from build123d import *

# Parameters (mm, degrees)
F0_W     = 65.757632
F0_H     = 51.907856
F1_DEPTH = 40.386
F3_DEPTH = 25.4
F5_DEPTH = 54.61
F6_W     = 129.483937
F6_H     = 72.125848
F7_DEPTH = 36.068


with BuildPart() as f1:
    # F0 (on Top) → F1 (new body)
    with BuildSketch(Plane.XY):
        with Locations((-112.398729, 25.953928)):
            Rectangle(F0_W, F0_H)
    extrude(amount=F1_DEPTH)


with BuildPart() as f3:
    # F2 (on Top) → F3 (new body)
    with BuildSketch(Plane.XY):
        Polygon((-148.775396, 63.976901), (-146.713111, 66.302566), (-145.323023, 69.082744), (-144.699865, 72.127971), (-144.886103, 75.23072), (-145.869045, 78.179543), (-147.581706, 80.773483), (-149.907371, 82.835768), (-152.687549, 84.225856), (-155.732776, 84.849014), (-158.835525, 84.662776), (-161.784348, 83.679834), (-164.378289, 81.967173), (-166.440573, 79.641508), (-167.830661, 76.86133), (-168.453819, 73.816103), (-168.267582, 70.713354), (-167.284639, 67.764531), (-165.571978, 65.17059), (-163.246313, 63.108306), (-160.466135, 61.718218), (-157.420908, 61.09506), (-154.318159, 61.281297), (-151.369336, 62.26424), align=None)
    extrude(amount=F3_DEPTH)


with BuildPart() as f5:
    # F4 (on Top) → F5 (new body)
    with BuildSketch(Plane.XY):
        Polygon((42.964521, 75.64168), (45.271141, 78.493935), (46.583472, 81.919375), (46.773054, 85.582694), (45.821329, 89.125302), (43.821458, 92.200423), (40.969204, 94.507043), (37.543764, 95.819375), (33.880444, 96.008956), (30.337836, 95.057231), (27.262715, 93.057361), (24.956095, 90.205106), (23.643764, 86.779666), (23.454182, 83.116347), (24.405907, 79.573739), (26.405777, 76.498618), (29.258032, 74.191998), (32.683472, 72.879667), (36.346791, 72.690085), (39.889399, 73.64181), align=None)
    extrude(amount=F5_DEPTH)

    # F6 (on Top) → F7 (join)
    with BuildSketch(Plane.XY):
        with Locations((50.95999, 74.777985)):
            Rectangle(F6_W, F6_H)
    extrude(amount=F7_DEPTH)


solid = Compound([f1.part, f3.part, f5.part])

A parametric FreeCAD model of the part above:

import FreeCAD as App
import Part
import Sketcher

V = App.Vector
Q = App.Units.Quantity

doc = App.newDocument("Part")
params = doc.addObject("Spreadsheet::Sheet", "Params")
for row, (alias, value) in enumerate([
    ("pad1_length", "1.59 in"),
    ("pad2_length", "1 in"),
    ("pad3_length", "2.15 in"),
    ("pad4_length", "1.42 in"),
], start=1):
    params.set(f"A{row}", alias)
    params.set(f"B{row}", "=" + value)
    params.setAlias(f"B{row}", alias)

body = doc.addObject("PartDesign::Body", "Body")

sketch1 = doc.addObject("Sketcher::SketchObject", "Sketch")
body.addObject(sketch1)
sketch1.AttachmentSupport = (doc.XY_Plane, [""])
sketch1.MapMode = "FlatFace"
sketch1.addGeometry([
    Part.LineSegment(V(-145.277545, 51.907856, 0), V(-145.277545, 0, 0)),
    Part.LineSegment(V(-145.277545, 0, 0), V(-79.519913, 0, 0)),
    Part.LineSegment(V(-79.519913, 0, 0), V(-79.519913, 51.907856, 0)),
    Part.LineSegment(V(-79.519913, 51.907856, 0), V(-145.277545, 51.907856, 0)),
], False)
sketch1.addConstraint([
    Sketcher.Constraint("Coincident", 0, 2, 1, 1),
    Sketcher.Constraint("Coincident", 1, 2, 2, 1),
    Sketcher.Constraint("Coincident", 2, 2, 3, 1),
    Sketcher.Constraint("Coincident", 3, 2, 0, 1),
    Sketcher.Constraint("Vertical", 0),
    Sketcher.Constraint("Horizontal", 1),
    Sketcher.Constraint("Vertical", 2),
    Sketcher.Constraint("Horizontal", 3),
    Sketcher.Constraint("PointOnObject", 0, 2, -1),
    Sketcher.Constraint("DistanceX", 1, 1, 1, 2, Q("65.757632 mm")),
    Sketcher.Constraint("DistanceY", 0, 2, 0, 1, Q("51.907856 mm")),
    Sketcher.Constraint("DistanceX", 0, 2, -1, 1, Q("145.277545 mm")),
])
pad1 = doc.addObject("PartDesign::Pad", "Pad")
body.addObject(pad1)
pad1.Profile = sketch1
pad1.setExpression("Length", "Params.pad1_length")
body2 = doc.addObject("PartDesign::Body", "Body001")

sketch2 = doc.addObject("Sketcher::SketchObject", "Sketch001")
body2.addObject(sketch2)
sketch2.AttachmentSupport = (doc.getObject("XY_Plane001"), [""])
sketch2.MapMode = "FlatFace"
sketch2.addGeometry([
    Part.LineSegment(V(-148.775396, 63.976901, 0), V(-146.713111, 66.302566, 0)),
    Part.LineSegment(V(-146.713111, 66.302566, 0), V(-145.323023, 69.082744, 0)),
    Part.LineSegment(V(-145.323023, 69.082744, 0), V(-144.699865, 72.127971, 0)),
    Part.LineSegment(V(-144.699865, 72.127971, 0), V(-144.886103, 75.23072, 0)),
    Part.LineSegment(V(-144.886103, 75.23072, 0), V(-145.869045, 78.179543, 0)),
    Part.LineSegment(V(-145.869045, 78.179543, 0), V(-147.581706, 80.773483, 0)),
    Part.LineSegment(V(-147.581706, 80.773483, 0), V(-149.907371, 82.835768, 0)),
    Part.LineSegment(V(-149.907371, 82.835768, 0), V(-152.687549, 84.225856, 0)),
    Part.LineSegment(V(-152.687549, 84.225856, 0), V(-155.732776, 84.849014, 0)),
    Part.LineSegment(V(-155.732776, 84.849014, 0), V(-158.835525, 84.662776, 0)),
    Part.LineSegment(V(-158.835525, 84.662776, 0), V(-161.784348, 83.679834, 0)),
    Part.LineSegment(V(-161.784348, 83.679834, 0), V(-164.378289, 81.967173, 0)),
    Part.LineSegment(V(-164.378289, 81.967173, 0), V(-166.440573, 79.641508, 0)),
    Part.LineSegment(V(-166.440573, 79.641508, 0), V(-167.830661, 76.86133, 0)),
    Part.LineSegment(V(-167.830661, 76.86133, 0), V(-168.453819, 73.816103, 0)),
    Part.LineSegment(V(-168.453819, 73.816103, 0), V(-168.267582, 70.713354, 0)),
    Part.LineSegment(V(-168.267582, 70.713354, 0), V(-167.284639, 67.764531, 0)),
    Part.LineSegment(V(-167.284639, 67.764531, 0), V(-165.571978, 65.17059, 0)),
    Part.LineSegment(V(-165.571978, 65.17059, 0), V(-163.246313, 63.108306, 0)),
    Part.LineSegment(V(-163.246313, 63.108306, 0), V(-160.466135, 61.718218, 0)),
    Part.LineSegment(V(-160.466135, 61.718218, 0), V(-157.420908, 61.09506, 0)),
    Part.LineSegment(V(-157.420908, 61.09506, 0), V(-154.318159, 61.281297, 0)),
    Part.LineSegment(V(-154.318159, 61.281297, 0), V(-151.369336, 62.26424, 0)),
    Part.LineSegment(V(-151.369336, 62.26424, 0), V(-148.775396, 63.976901, 0)),
], False)
sketch2.addConstraint([
    Sketcher.Constraint("Coincident", 0, 2, 1, 1),
    Sketcher.Constraint("Coincident", 1, 2, 2, 1),
    Sketcher.Constraint("Coincident", 2, 2, 3, 1),
    Sketcher.Constraint("Coincident", 3, 2, 4, 1),
    Sketcher.Constraint("Coincident", 4, 2, 5, 1),
    Sketcher.Constraint("Coincident", 5, 2, 6, 1),
    Sketcher.Constraint("Coincident", 6, 2, 7, 1),
    Sketcher.Constraint("Coincident", 7, 2, 8, 1),
    Sketcher.Constraint("Coincident", 8, 2, 9, 1),
    Sketcher.Constraint("Coincident", 9, 2, 10, 1),
    Sketcher.Constraint("Coincident", 10, 2, 11, 1),
    Sketcher.Constraint("Coincident", 11, 2, 12, 1),
    Sketcher.Constraint("Coincident", 12, 2, 13, 1),
    Sketcher.Constraint("Coincident", 13, 2, 14, 1),
    Sketcher.Constraint("Coincident", 14, 2, 15, 1),
    Sketcher.Constraint("Coincident", 15, 2, 16, 1),
    Sketcher.Constraint("Coincident", 16, 2, 17, 1),
    Sketcher.Constraint("Coincident", 17, 2, 18, 1),
    Sketcher.Constraint("Coincident", 18, 2, 19, 1),
    Sketcher.Constraint("Coincident", 19, 2, 20, 1),
    Sketcher.Constraint("Coincident", 20, 2, 21, 1),
    Sketcher.Constraint("Coincident", 21, 2, 22, 1),
    Sketcher.Constraint("Coincident", 22, 2, 23, 1),
    Sketcher.Constraint("Coincident", 23, 2, 0, 1),
    Sketcher.Constraint("Perpendicular", 0, 6),
    Sketcher.Constraint("Perpendicular", 1, 7),
    Sketcher.Constraint("Perpendicular", 2, 8),
    Sketcher.Constraint("Perpendicular", 3, 9),
    Sketcher.Constraint("Perpendicular", 4, 10),
    Sketcher.Constraint("Perpendicular", 5, 11),
    Sketcher.Constraint("Perpendicular", 6, 12),
    Sketcher.Constraint("Perpendicular", 7, 13),
    Sketcher.Constraint("Perpendicular", 8, 14),
    Sketcher.Constraint("Perpendicular", 9, 15),
    Sketcher.Constraint("Perpendicular", 10, 16),
    Sketcher.Constraint("Perpendicular", 11, 17),
    Sketcher.Constraint("Perpendicular", 12, 18),
    Sketcher.Constraint("Perpendicular", 13, 19),
    Sketcher.Constraint("Perpendicular", 14, 20),
    Sketcher.Constraint("Perpendicular", 15, 21),
    Sketcher.Constraint("Perpendicular", 16, 22),
    Sketcher.Constraint("Perpendicular", 17, 23),
    Sketcher.Constraint("Equal", 0, 1),
    Sketcher.Constraint("Equal", 1, 2),
    Sketcher.Constraint("Equal", 2, 3),
    Sketcher.Constraint("Equal", 3, 4),
    Sketcher.Constraint("Equal", 4, 5),
    Sketcher.Constraint("Equal", 5, 6),
    Sketcher.Constraint("Equal", 6, 7),
    Sketcher.Constraint("Equal", 7, 8),
    Sketcher.Constraint("Equal", 8, 9),
    Sketcher.Constraint("Equal", 9, 10),
    Sketcher.Constraint("Equal", 10, 11),
    Sketcher.Constraint("Equal", 11, 12),
    Sketcher.Constraint("Equal", 12, 13),
    Sketcher.Constraint("Equal", 13, 14),
    Sketcher.Constraint("Equal", 14, 15),
    Sketcher.Constraint("Equal", 15, 16),
    Sketcher.Constraint("Equal", 16, 17),
    Sketcher.Constraint("Equal", 17, 18),
    Sketcher.Constraint("Equal", 18, 19),
    Sketcher.Constraint("Equal", 19, 20),
    Sketcher.Constraint("Equal", 20, 21),
    Sketcher.Constraint("DistanceY", -1, 1, 23, 2, Q("63.976901 mm")),
    Sketcher.Constraint("DistanceY", 1, 2, 4, 2, Q("9.096799 mm")),
    Sketcher.Constraint("DistanceX", 0, 2, -1, 1, Q("146.713111 mm")),
    Sketcher.Constraint("DistanceY", -1, 1, 2, 2, Q("72.127971 mm")),
    Sketcher.Constraint("DistanceY", -1, 1, 3, 2, Q("75.23072 mm")),
    Sketcher.Constraint("DistanceX", 6, 2, -1, 1, Q("149.907371 mm")),
    Sketcher.Constraint("DistanceY", -1, 1, 6, 2, Q("82.835768 mm")),
    Sketcher.Constraint("DistanceX", 7, 2, -1, 1, Q("152.687549 mm")),
    Sketcher.Constraint("DistanceX", 11, 2, -1, 1, Q("164.378289 mm")),
])
pad2 = doc.addObject("PartDesign::Pad", "Pad001")
body2.addObject(pad2)
pad2.Profile = sketch2
pad2.setExpression("Length", "Params.pad2_length")
body3 = doc.addObject("PartDesign::Body", "Body002")

sketch3 = doc.addObject("Sketcher::SketchObject", "Sketch002")
body3.addObject(sketch3)
sketch3.AttachmentSupport = (doc.getObject("XY_Plane002"), [""])
sketch3.MapMode = "FlatFace"
sketch3.addGeometry([
    Part.LineSegment(V(42.964521, 75.64168, 0), V(45.271141, 78.493935, 0)),
    Part.LineSegment(V(45.271141, 78.493935, 0), V(46.583472, 81.919375, 0)),
    Part.LineSegment(V(46.583472, 81.919375, 0), V(46.773054, 85.582694, 0)),
    Part.LineSegment(V(46.773054, 85.582694, 0), V(45.821329, 89.125302, 0)),
    Part.LineSegment(V(45.821329, 89.125302, 0), V(43.821458, 92.200423, 0)),
    Part.LineSegment(V(43.821458, 92.200423, 0), V(40.969204, 94.507043, 0)),
    Part.LineSegment(V(40.969204, 94.507043, 0), V(37.543764, 95.819375, 0)),
    Part.LineSegment(V(37.543764, 95.819375, 0), V(33.880444, 96.008956, 0)),
    Part.LineSegment(V(33.880444, 96.008956, 0), V(30.337836, 95.057231, 0)),
    Part.LineSegment(V(30.337836, 95.057231, 0), V(27.262715, 93.057361, 0)),
    Part.LineSegment(V(27.262715, 93.057361, 0), V(24.956095, 90.205106, 0)),
    Part.LineSegment(V(24.956095, 90.205106, 0), V(23.643764, 86.779666, 0)),
    Part.LineSegment(V(23.643764, 86.779666, 0), V(23.454182, 83.116347, 0)),
    Part.LineSegment(V(23.454182, 83.116347, 0), V(24.405907, 79.573739, 0)),
    Part.LineSegment(V(24.405907, 79.573739, 0), V(26.405777, 76.498618, 0)),
    Part.LineSegment(V(26.405777, 76.498618, 0), V(29.258032, 74.191998, 0)),
    Part.LineSegment(V(29.258032, 74.191998, 0), V(32.683472, 72.879667, 0)),
    Part.LineSegment(V(32.683472, 72.879667, 0), V(36.346791, 72.690085, 0)),
    Part.LineSegment(V(36.346791, 72.690085, 0), V(39.889399, 73.64181, 0)),
    Part.LineSegment(V(39.889399, 73.64181, 0), V(42.964521, 75.64168, 0)),
], False)
sketch3.addConstraint([
    Sketcher.Constraint("Coincident", 0, 2, 1, 1),
    Sketcher.Constraint("Coincident", 1, 2, 2, 1),
    Sketcher.Constraint("Coincident", 2, 2, 3, 1),
    Sketcher.Constraint("Coincident", 3, 2, 4, 1),
    Sketcher.Constraint("Coincident", 4, 2, 5, 1),
    Sketcher.Constraint("Coincident", 5, 2, 6, 1),
    Sketcher.Constraint("Coincident", 6, 2, 7, 1),
    Sketcher.Constraint("Coincident", 7, 2, 8, 1),
    Sketcher.Constraint("Coincident", 8, 2, 9, 1),
    Sketcher.Constraint("Coincident", 9, 2, 10, 1),
    Sketcher.Constraint("Coincident", 10, 2, 11, 1),
    Sketcher.Constraint("Coincident", 11, 2, 12, 1),
    Sketcher.Constraint("Coincident", 12, 2, 13, 1),
    Sketcher.Constraint("Coincident", 13, 2, 14, 1),
    Sketcher.Constraint("Coincident", 14, 2, 15, 1),
    Sketcher.Constraint("Coincident", 15, 2, 16, 1),
    Sketcher.Constraint("Coincident", 16, 2, 17, 1),
    Sketcher.Constraint("Coincident", 17, 2, 18, 1),
    Sketcher.Constraint("Coincident", 18, 2, 19, 1),
    Sketcher.Constraint("Coincident", 19, 2, 0, 1),
    Sketcher.Constraint("Perpendicular", 0, 5),
    Sketcher.Constraint("Perpendicular", 1, 6),
    Sketcher.Constraint("Perpendicular", 2, 7),
    Sketcher.Constraint("Perpendicular", 3, 8),
    Sketcher.Constraint("Perpendicular", 4, 9),
    Sketcher.Constraint("Perpendicular", 5, 10),
    Sketcher.Constraint("Perpendicular", 6, 11),
    Sketcher.Constraint("Perpendicular", 7, 12),
    Sketcher.Constraint("Perpendicular", 8, 13),
    Sketcher.Constraint("Perpendicular", 9, 14),
    Sketcher.Constraint("Perpendicular", 10, 15),
    Sketcher.Constraint("Perpendicular", 11, 16),
    Sketcher.Constraint("Perpendicular", 12, 17),
    Sketcher.Constraint("Perpendicular", 13, 18),
    Sketcher.Constraint("Perpendicular", 14, 19),
    Sketcher.Constraint("Equal", 0, 1),
    Sketcher.Constraint("Equal", 1, 2),
    Sketcher.Constraint("Equal", 2, 3),
    Sketcher.Constraint("Equal", 3, 4),
    Sketcher.Constraint("Equal", 4, 5),
    Sketcher.Constraint("Equal", 5, 6),
    Sketcher.Constraint("Equal", 6, 7),
    Sketcher.Constraint("Equal", 7, 8),
    Sketcher.Constraint("Equal", 8, 9),
    Sketcher.Constraint("Equal", 9, 10),
    Sketcher.Constraint("Equal", 10, 11),
    Sketcher.Constraint("Equal", 11, 12),
    Sketcher.Constraint("Equal", 12, 13),
    Sketcher.Constraint("Equal", 13, 14),
    Sketcher.Constraint("Equal", 14, 15),
    Sketcher.Constraint("Equal", 15, 16),
    Sketcher.Constraint("Equal", 16, 17),
    Sketcher.Constraint("DistanceY", -1, 1, 15, 2, Q("74.191998 mm")),
    Sketcher.Constraint("DistanceX", -1, 1, 18, 2, Q("39.889399 mm")),
    Sketcher.Constraint("DistanceY", 1, 2, 6, 2, Q("13.9 mm")),
    Sketcher.Constraint("Distance", 1, Q("3.668222 mm")),
    Sketcher.Constraint("DistanceX", -1, 1, 0, 2, Q("45.271141 mm")),
    Sketcher.Constraint("DistanceX", -1, 1, 3, 2, Q("45.821329 mm")),
    Sketcher.Constraint("DistanceY", -1, 1, 8, 2, Q("95.057231 mm")),
    Sketcher.Constraint("DistanceY", -1, 1, 9, 2, Q("93.057361 mm")),
])
pad3 = doc.addObject("PartDesign::Pad", "Pad002")
body3.addObject(pad3)
pad3.Profile = sketch3
pad3.setExpression("Length", "Params.pad3_length")

sketch4 = doc.addObject("Sketcher::SketchObject", "Sketch003")
body3.addObject(sketch4)
sketch4.AttachmentSupport = (doc.getObject("XY_Plane002"), [""])
sketch4.MapMode = "FlatFace"
sketch4.addGeometry([
    Part.LineSegment(V(-13.781978, 110.840909, 0), V(-13.781978, 38.715061, 0)),
    Part.LineSegment(V(-13.781978, 38.715061, 0), V(115.701959, 38.715061, 0)),
    Part.LineSegment(V(115.701959, 38.715061, 0), V(115.701959, 110.840909, 0)),
    Part.LineSegment(V(115.701959, 110.840909, 0), V(-13.781978, 110.840909, 0)),
], False)
sketch4.addConstraint([
    Sketcher.Constraint("Coincident", 0, 2, 1, 1),
    Sketcher.Constraint("Coincident", 1, 2, 2, 1),
    Sketcher.Constraint("Coincident", 2, 2, 3, 1),
    Sketcher.Constraint("Coincident", 3, 2, 0, 1),
    Sketcher.Constraint("Vertical", 0),
    Sketcher.Constraint("Horizontal", 1),
    Sketcher.Constraint("Vertical", 2),
    Sketcher.Constraint("Horizontal", 3),
    Sketcher.Constraint("DistanceX", 1, 1, 1, 2, Q("129.483937 mm")),
    Sketcher.Constraint("DistanceY", 0, 2, 0, 1, Q("72.125848 mm")),
    Sketcher.Constraint("DistanceX", 0, 2, -1, 1, Q("13.781978 mm")),
    Sketcher.Constraint("DistanceY", -1, 1, 0, 2, Q("38.715061 mm")),
])
pad4 = doc.addObject("PartDesign::Pad", "Pad003")
body3.addObject(pad4)
pad4.Profile = sketch4
pad4.setExpression("Length", "Params.pad4_length")

doc.recompute()
